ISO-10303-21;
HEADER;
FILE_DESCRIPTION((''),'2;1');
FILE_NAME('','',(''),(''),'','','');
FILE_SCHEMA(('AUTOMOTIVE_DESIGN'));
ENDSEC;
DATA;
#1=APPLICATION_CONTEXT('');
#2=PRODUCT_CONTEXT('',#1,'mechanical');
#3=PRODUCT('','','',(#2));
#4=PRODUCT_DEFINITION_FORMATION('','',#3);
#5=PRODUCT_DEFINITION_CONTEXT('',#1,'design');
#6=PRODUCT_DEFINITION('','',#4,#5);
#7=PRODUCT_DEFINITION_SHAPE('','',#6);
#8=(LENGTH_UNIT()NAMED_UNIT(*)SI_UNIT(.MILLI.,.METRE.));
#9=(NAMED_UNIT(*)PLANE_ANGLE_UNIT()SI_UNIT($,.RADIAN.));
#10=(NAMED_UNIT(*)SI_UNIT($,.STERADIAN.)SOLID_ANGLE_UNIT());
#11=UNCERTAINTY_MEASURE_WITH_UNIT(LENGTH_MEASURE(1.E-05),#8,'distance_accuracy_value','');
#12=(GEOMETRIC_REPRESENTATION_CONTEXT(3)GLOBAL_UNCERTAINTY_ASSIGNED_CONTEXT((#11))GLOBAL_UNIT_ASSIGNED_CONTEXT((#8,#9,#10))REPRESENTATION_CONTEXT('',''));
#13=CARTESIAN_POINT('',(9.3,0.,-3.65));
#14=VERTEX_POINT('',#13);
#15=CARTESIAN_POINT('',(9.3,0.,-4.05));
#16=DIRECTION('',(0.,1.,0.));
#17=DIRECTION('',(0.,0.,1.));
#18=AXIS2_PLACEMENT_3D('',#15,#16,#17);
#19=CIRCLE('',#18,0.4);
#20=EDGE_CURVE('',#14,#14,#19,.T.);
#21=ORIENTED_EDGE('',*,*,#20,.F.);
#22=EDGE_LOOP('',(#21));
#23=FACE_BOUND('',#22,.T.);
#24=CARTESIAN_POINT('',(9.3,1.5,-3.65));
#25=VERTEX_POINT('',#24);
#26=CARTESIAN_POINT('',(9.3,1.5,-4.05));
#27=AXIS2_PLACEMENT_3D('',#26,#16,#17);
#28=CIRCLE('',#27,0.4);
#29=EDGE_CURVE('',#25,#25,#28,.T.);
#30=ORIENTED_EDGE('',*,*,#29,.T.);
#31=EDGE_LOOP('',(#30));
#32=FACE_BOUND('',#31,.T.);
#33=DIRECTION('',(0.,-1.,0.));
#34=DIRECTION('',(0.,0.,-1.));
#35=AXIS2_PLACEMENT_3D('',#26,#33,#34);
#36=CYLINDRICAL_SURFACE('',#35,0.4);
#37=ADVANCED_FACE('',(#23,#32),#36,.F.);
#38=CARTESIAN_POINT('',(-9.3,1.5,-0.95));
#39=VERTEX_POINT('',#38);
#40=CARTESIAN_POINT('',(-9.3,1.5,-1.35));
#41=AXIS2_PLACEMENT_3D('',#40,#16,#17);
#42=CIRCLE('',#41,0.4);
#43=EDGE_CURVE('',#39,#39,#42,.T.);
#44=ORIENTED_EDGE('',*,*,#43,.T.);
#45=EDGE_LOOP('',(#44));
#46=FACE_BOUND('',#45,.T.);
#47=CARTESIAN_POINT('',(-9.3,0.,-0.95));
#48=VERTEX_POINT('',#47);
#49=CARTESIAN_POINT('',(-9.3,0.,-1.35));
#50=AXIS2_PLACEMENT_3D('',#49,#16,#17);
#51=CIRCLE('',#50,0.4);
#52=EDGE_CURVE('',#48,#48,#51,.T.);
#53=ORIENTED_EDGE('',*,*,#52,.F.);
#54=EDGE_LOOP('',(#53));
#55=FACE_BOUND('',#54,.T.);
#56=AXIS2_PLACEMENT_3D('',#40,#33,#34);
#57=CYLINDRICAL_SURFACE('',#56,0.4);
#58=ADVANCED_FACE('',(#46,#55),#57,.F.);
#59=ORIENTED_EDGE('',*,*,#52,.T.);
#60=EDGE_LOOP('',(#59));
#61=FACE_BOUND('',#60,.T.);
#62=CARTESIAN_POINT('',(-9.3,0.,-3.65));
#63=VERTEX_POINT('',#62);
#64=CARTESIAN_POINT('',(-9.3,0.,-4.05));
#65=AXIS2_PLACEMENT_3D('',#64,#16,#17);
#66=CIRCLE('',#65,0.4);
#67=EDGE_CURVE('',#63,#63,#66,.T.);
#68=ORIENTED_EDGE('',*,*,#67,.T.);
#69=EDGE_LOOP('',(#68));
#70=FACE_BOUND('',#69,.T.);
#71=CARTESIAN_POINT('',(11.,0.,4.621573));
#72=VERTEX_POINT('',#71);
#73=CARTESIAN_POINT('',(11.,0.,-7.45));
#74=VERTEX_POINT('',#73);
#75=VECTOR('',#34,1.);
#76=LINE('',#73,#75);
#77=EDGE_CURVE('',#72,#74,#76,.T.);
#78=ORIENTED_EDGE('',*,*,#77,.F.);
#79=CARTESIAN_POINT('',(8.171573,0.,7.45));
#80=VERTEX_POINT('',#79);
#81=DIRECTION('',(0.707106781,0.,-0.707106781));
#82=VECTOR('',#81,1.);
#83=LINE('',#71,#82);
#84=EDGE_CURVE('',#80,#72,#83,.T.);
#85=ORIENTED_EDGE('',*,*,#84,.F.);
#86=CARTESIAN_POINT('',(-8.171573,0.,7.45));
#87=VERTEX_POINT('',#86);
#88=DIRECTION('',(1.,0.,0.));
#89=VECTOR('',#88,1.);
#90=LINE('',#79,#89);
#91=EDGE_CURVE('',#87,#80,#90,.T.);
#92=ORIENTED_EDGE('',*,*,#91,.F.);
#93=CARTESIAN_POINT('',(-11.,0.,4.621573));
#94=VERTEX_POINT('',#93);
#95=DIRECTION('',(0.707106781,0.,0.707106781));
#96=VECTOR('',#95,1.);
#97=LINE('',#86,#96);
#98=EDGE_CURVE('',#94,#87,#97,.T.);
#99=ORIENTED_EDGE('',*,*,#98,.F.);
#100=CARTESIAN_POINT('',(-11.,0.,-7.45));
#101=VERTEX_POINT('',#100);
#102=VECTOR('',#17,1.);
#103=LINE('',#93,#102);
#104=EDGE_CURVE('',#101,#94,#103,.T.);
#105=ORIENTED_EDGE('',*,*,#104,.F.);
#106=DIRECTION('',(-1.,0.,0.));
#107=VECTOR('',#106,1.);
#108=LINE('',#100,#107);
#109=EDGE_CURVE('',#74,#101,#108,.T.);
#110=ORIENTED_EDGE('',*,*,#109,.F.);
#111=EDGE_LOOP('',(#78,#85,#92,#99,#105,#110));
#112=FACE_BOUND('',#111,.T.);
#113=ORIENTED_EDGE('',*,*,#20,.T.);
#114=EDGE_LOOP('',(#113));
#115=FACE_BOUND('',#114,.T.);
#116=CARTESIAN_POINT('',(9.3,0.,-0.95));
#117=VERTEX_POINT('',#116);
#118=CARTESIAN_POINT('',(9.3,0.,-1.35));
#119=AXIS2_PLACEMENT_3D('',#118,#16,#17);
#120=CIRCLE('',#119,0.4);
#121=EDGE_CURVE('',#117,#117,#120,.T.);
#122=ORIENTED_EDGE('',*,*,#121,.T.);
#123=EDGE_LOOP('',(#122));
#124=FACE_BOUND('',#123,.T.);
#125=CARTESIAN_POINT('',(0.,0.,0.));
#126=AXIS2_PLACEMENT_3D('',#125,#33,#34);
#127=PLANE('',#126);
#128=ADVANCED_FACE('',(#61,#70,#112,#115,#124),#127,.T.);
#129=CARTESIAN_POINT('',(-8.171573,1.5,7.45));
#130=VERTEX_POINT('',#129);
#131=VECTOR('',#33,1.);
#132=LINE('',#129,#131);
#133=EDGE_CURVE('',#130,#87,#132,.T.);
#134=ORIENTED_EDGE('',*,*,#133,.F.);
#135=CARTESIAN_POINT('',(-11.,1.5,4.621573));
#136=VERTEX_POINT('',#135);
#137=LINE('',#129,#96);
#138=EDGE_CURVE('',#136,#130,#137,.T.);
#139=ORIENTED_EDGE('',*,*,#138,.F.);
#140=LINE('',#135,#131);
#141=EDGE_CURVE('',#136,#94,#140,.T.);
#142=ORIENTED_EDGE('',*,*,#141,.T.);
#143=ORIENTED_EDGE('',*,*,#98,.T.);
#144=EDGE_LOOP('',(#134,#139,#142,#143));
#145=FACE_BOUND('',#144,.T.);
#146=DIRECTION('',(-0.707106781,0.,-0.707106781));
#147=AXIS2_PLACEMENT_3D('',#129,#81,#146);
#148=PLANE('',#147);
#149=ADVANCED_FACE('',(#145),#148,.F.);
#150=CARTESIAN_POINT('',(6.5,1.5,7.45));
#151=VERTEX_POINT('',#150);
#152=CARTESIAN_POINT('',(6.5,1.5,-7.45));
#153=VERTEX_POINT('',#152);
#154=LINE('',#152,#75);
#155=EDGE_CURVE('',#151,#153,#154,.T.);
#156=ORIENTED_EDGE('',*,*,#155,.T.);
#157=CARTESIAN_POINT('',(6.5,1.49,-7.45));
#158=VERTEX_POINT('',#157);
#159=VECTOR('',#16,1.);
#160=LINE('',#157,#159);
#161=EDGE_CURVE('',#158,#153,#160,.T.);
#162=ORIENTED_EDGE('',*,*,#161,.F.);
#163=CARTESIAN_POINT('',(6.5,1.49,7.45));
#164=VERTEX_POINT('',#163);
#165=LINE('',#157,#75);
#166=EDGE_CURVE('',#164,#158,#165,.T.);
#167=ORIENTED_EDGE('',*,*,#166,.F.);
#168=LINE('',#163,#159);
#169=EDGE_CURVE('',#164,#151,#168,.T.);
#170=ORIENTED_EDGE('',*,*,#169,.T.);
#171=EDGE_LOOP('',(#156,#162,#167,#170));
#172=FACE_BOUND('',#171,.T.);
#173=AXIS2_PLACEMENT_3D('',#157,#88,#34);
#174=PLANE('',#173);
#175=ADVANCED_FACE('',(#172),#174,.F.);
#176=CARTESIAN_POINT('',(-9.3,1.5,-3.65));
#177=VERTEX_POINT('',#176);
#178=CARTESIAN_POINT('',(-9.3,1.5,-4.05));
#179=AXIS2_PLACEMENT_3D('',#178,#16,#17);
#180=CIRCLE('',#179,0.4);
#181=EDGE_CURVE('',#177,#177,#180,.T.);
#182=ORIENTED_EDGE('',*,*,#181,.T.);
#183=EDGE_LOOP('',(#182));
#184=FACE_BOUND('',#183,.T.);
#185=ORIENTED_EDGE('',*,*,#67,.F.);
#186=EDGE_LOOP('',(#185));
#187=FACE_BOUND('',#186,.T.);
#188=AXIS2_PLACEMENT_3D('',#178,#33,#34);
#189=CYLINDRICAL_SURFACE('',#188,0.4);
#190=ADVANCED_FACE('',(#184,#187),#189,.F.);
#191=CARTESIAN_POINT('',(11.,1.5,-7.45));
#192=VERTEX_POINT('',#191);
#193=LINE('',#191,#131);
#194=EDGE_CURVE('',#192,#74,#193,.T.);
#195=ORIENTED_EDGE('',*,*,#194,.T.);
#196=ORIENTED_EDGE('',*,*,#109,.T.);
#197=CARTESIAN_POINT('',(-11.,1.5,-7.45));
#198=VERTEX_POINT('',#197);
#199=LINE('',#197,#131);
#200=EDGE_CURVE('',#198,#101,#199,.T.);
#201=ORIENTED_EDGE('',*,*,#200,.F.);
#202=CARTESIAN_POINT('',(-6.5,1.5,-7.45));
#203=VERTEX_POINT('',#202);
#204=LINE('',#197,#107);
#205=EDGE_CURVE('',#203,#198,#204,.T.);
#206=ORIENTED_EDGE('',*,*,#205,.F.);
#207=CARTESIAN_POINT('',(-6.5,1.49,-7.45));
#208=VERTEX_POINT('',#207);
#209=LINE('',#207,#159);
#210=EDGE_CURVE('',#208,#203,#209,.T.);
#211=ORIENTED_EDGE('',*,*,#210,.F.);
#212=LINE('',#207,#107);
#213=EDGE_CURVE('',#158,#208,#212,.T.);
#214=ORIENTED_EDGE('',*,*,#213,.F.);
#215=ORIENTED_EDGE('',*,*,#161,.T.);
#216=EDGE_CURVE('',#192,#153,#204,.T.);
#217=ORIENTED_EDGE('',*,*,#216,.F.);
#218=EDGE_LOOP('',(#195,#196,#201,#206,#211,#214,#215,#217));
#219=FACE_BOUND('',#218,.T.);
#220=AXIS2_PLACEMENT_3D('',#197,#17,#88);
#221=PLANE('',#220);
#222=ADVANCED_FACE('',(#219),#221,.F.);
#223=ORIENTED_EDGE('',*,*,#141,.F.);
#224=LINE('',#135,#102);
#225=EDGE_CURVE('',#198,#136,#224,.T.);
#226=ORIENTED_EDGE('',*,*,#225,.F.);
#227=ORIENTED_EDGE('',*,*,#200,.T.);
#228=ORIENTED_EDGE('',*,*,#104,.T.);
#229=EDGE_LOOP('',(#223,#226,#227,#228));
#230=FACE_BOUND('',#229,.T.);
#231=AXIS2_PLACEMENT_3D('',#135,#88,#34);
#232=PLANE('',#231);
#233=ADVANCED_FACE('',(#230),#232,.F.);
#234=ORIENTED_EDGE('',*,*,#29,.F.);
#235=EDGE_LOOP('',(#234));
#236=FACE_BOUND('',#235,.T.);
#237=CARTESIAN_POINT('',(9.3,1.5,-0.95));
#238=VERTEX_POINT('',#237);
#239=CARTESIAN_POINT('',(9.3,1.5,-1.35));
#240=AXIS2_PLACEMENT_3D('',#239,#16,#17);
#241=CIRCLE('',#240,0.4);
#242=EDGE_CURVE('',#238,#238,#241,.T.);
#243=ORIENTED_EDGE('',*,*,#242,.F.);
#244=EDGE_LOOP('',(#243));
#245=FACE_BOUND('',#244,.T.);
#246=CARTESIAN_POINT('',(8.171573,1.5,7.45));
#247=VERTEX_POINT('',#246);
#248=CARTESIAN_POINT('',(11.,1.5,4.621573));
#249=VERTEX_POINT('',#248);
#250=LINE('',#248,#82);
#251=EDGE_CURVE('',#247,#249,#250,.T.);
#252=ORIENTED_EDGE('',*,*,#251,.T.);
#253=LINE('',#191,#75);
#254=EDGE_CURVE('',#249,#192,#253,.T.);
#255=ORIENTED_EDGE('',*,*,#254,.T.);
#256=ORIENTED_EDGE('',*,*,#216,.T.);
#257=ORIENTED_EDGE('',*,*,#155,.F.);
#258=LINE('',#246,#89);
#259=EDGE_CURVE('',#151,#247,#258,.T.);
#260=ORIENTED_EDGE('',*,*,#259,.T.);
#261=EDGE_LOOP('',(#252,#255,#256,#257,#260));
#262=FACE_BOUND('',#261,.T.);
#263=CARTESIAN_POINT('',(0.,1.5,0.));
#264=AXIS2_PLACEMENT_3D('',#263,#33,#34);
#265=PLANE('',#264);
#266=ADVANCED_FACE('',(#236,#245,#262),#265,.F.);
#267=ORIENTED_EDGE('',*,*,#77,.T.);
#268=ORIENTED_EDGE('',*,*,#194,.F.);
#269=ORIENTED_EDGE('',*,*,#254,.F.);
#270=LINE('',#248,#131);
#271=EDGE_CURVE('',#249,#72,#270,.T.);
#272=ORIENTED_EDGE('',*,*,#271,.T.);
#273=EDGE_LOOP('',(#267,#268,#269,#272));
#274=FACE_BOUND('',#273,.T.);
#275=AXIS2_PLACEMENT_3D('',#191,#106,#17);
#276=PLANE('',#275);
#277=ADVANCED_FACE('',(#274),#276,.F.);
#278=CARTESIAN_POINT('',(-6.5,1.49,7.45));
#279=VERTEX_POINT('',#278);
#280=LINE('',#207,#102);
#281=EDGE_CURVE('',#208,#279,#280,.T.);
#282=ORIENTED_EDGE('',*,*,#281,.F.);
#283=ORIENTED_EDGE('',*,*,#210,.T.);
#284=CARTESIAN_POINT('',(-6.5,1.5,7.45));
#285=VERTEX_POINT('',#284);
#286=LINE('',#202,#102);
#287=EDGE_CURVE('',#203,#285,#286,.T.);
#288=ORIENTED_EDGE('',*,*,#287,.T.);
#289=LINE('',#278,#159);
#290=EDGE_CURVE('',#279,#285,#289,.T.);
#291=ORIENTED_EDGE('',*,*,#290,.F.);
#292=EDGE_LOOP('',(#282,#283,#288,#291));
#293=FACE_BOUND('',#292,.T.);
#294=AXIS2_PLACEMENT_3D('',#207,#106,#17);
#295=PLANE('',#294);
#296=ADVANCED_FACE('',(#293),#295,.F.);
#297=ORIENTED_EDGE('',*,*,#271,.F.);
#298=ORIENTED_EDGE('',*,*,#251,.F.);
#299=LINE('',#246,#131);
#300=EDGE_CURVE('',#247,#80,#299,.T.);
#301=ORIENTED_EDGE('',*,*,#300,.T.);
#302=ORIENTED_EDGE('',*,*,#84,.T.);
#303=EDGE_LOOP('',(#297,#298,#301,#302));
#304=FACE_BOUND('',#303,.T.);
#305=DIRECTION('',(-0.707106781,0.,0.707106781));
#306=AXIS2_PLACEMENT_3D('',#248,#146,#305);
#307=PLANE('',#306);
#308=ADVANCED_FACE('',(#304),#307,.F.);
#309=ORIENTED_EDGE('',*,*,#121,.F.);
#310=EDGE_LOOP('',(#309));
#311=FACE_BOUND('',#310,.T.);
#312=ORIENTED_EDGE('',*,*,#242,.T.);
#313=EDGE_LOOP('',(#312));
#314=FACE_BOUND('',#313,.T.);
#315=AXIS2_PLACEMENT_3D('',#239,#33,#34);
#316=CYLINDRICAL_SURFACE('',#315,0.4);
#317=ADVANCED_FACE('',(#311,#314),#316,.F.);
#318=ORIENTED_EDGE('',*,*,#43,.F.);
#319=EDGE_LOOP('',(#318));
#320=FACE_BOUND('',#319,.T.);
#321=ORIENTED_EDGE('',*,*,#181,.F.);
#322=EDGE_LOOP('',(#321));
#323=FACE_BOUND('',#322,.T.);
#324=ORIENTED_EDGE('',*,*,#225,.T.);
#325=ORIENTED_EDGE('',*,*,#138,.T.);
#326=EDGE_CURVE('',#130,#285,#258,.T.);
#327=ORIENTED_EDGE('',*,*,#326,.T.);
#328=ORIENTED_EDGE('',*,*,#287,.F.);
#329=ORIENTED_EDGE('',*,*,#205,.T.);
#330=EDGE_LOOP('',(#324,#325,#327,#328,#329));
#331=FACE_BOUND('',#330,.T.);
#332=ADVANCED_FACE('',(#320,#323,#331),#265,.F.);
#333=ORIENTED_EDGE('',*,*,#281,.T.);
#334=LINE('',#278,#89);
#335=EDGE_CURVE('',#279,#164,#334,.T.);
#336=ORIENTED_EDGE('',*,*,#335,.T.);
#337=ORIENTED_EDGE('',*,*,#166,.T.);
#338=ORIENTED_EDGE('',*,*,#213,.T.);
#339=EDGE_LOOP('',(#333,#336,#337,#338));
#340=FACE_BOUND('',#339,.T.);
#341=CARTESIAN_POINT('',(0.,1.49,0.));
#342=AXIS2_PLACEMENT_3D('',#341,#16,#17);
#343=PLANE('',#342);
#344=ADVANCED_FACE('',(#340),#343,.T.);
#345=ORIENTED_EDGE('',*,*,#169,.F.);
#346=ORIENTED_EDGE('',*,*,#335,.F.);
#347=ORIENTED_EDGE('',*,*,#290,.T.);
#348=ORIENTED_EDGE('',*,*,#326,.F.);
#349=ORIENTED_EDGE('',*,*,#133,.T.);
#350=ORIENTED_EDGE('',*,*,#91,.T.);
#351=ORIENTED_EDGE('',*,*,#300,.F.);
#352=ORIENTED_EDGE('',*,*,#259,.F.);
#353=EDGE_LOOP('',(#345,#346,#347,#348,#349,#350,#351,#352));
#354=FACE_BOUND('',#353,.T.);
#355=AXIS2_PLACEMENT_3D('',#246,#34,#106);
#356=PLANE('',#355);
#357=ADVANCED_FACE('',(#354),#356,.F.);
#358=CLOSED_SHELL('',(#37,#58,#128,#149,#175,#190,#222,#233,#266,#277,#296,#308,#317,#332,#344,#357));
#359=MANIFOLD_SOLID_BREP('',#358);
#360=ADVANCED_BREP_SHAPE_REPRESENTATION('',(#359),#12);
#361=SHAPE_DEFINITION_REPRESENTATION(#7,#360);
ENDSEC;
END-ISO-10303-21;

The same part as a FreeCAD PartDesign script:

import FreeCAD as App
import Part
import Sketcher
Q = App.Units.Quantity

doc = App.newDocument("Part")
body = doc.addObject("PartDesign::Body", "Body")

# Sketch on XZ plane
sketch1 = doc.addObject("Sketcher::SketchObject", "Sketch")
body.addObject(sketch1)
sketch1.AttachmentSupport = (doc.XZ_Plane, [""])
sketch1.MapMode = "FlatFace"
sketch1.addGeometry(Part.LineSegment(App.Vector(11, -7.45, 0), App.Vector(-11, -7.45, 0)), False)
sketch1.addGeometry(Part.LineSegment(App.Vector(-11, -7.45, 0), App.Vector(-11, 4.62, 0)), False)
sketch1.addGeometry(Part.LineSegment(App.Vector(-11, 4.62, 0), App.Vector(-8.17, 7.45, 0)), False)
sketch1.addGeometry(Part.LineSegment(App.Vector(-8.17, 7.45, 0), App.Vector(8.17, 7.45, 0)), False)
sketch1.addGeometry(Part.LineSegment(App.Vector(8.17, 7.45, 0), App.Vector(11, 4.62, 0)), False)
sketch1.addGeometry(Part.LineSegment(App.Vector(11, 4.62, 0), App.Vector(11, -7.45, 0)), False)
sketch1.addGeometry(Part.Circle(App.Vector(9.3, -1.35, 0), App.Vector(0, 0, 1), 0.4), False)
sketch1.addGeometry(Part.Circle(App.Vector(-9.3, -1.35, 0), App.Vector(0, 0, 1), 0.4), False)
sketch1.addGeometry(Part.Circle(App.Vector(9.3, -4.05, 0), App.Vector(0, 0, 1), 0.4), False)
sketch1.addGeometry(Part.Circle(App.Vector(-9.3, -4.05, 0), App.Vector(0, 0, 1), 0.4), False)
sketch1.addConstraint(Sketcher.Constraint("Coincident", 0, 2, 1, 1))
sketch1.addConstraint(Sketcher.Constraint("Coincident", 1, 2, 2, 1))
sketch1.addConstraint(Sketcher.Constraint("Coincident", 2, 2, 3, 1))
sketch1.addConstraint(Sketcher.Constraint("Coincident", 3, 2, 4, 1))
sketch1.addConstraint(Sketcher.Constraint("Coincident", 4, 2, 5, 1))
sketch1.addConstraint(Sketcher.Constraint("Coincident", 5, 2, 0, 1))
sketch1.addConstraint(Sketcher.Constraint("Horizontal", 0))
sketch1.addConstraint(Sketcher.Constraint("Vertical", 1))
sketch1.addConstraint(Sketcher.Constraint("Horizontal", 3))
sketch1.addConstraint(Sketcher.Constraint("Vertical", 5))
sketch1.addConstraint(Sketcher.Constraint("Equal", 6, 7))
sketch1.addConstraint(Sketcher.Constraint("Equal", 7, 8))
sketch1.addConstraint(Sketcher.Constraint("Equal", 8, 9))
sketch1.addConstraint(Sketcher.Constraint("Symmetric", 6, 3, 7, 3, -2))
sketch1.addConstraint(Sketcher.Constraint("Symmetric", 8, 3, 9, 3, -2))
sketch1.addConstraint(Sketcher.Constraint("Symmetric", 1, 2, 4, 2, -2))
sketch1.addConstraint(Sketcher.Constraint("Perpendicular", 2, 4))
sketch1.addConstraint(Sketcher.Constraint("Vertical", 6, 3, 8, 3))
sketch1.addConstraint(Sketcher.Constraint("Equal", 2, 4))
sketch1.addConstraint(Sketcher.Constraint("Diameter", 6, Q("0.8 mm")))
sketch1.addConstraint(Sketcher.Constraint("DistanceX", 0, 2, 0, 1, Q("22 mm")))
sketch1.addConstraint(Sketcher.Constraint("Distance", 2, Q("4 mm")))
sketch1.addConstraint(Sketcher.Constraint("DistanceX", -1, 1, 6, 3, Q("9.3 mm")))
sketch1.addConstraint(Sketcher.Constraint("DistanceY", 8, 3, 6, 3, Q("2.7 mm")))
sketch1.addConstraint(Sketcher.Constraint("DistanceY", 0, 2, 9, 3, Q("3.4 mm")))
sketch1.addConstraint(Sketcher.Constraint("DistanceY", 7, 3, 2, 2, Q("8.8 mm")))
sketch1.addConstraint(Sketcher.Constraint("DistanceY", 6, 3, -1, 1, Q("1.35 mm")))
pad1 = doc.addObject("PartDesign::Pad", "Pad")
body.addObject(pad1)
pad1.Profile = sketch1
pad1.Length = 1.5
pad1.Reversed = True

# Sketch on XZ plane
sketch2 = doc.addObject("Sketcher::SketchObject", "Sketch001")
body.addObject(sketch2)
sketch2.AttachmentSupport = (doc.XZ_Plane, [""])
sketch2.MapMode = "FlatFace"
sketch2.AttachmentOffset = App.Placement(App.Vector(0, 0, -1.5), App.Rotation())
sketch2.addGeometry(Part.LineSegment(App.Vector(-6, -7, 0), App.Vector(-6, 7, 0)), False)
sketch2.addGeometry(Part.LineSegment(App.Vector(-6, 7, 0), App.Vector(6, 7, 0)), False)
sketch2.addGeometry(Part.LineSegment(App.Vector(6, 7, 0), App.Vector(6, -7, 0)), False)
sketch2.addGeometry(Part.LineSegment(App.Vector(6, -7, 0), App.Vector(-6, -7, 0)), False)
sketch2.addConstraint(Sketcher.Constraint("Coincident", 0, 2, 1, 1))
sketch2.addConstraint(Sketcher.Constraint("Coincident", 1, 2, 2, 1))
sketch2.addConstraint(Sketcher.Constraint("Coincident", 2, 2, 3, 1))
sketch2.addConstraint(Sketcher.Constraint("Coincident", 3, 2, 0, 1))
sketch2.addConstraint(Sketcher.Constraint("Vertical", 0))
sketch2.addConstraint(Sketcher.Constraint("Horizontal", 1))
sketch2.addConstraint(Sketcher.Constraint("Vertical", 2))
sketch2.addConstraint(Sketcher.Constraint("Horizontal", 3))
sketch2.addConstraint(Sketcher.Constraint("Symmetric", 0, 2, 2, 2, -1, 1))
sketch2.addConstraint(Sketcher.Constraint("DistanceX", 1, 1, 1, 2, Q("13 mm")))
sketch2.addConstraint(Sketcher.Constraint("DistanceY", 0, 1, 0, 2, Q("14.9 mm")))
pocket1 = doc.addObject("PartDesign::Pocket", "Pocket")
body.addObject(pocket1)
pocket1.Profile = sketch2
pocket1.Length = 0.01
pocket1.Reversed = True

doc.recompute()
